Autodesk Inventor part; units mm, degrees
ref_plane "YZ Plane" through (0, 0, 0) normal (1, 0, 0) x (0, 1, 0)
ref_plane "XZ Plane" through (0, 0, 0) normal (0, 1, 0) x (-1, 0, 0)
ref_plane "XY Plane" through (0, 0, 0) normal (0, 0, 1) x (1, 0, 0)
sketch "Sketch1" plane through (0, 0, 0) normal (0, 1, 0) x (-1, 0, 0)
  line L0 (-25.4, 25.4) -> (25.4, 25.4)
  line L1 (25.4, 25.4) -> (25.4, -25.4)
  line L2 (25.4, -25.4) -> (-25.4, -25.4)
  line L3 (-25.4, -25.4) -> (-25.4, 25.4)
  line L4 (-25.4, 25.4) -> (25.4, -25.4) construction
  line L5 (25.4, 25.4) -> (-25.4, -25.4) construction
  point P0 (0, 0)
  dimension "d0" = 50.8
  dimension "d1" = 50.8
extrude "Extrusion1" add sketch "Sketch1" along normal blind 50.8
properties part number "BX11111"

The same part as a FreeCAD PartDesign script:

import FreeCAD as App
import Part
import Sketcher
from FreeCAD import Vector
Q = App.Units.Quantity


def add_polygon(sketch, points):
    """Adds a closed chain of lines whose ends are joined by coincident constraints."""
    first, n = sketch.GeometryCount, len(points)
    for a, b in zip(points, points[1:] + points[:1]):
        sketch.addGeometry(Part.LineSegment(App.Vector(*a, 0), App.Vector(*b, 0)), False)
    for i in range(n):
        sketch.addConstraint(Sketcher.Constraint("Coincident", first + i, 2, first + (i + 1) % n, 1))

doc = App.newDocument("Part")
params = doc.addObject("Spreadsheet::Sheet", "Params")
for row, (alias, value) in enumerate([
    ("sketch1_width", "2 in"),
    ("pad1_length", "2 in"),
], start=1):
    params.set(f"A{row}", alias)
    params.set(f"B{row}", "=" + value)
    params.setAlias(f"B{row}", alias)

body = doc.addObject("PartDesign::Body", "Body")

# Sketch on XZ plane
sketch1 = body.newObject("Sketcher::SketchObject", "Sketch")
sketch1.AttachmentSupport = (doc.getObject("XZ_Plane"), [""])
sketch1.MapMode = "FlatFace"
add_polygon(sketch1, [(-25, 25), (25, 25), (25, -25), (-25, -25)])  # lines 0-3
sketch1.addConstraint(Sketcher.Constraint("Horizontal", 0))
sketch1.addConstraint(Sketcher.Constraint("Vertical", 1))
sketch1.addConstraint(Sketcher.Constraint("Horizontal", 2))
sketch1.addConstraint(Sketcher.Constraint("Vertical", 3))
sketch1.addConstraint(Sketcher.Constraint("Symmetric", 0, 2, 2, 2, -1, 1))
sketch1.addConstraint(Sketcher.Constraint("Equal", 2, 1))
sketch1.addConstraint(Sketcher.Constraint("DistanceX", 0, 1, 0, 2, Q("2 in")))
sketch1.setExpression("Constraints[10]", "Params.sketch1_width")
pad1 = body.newObject("PartDesign::Pad", "Pad")
pad1.Profile = sketch1
pad1.setExpression("Length", "Params.pad1_length")
pad1.Reversed = True

doc.recompute()
